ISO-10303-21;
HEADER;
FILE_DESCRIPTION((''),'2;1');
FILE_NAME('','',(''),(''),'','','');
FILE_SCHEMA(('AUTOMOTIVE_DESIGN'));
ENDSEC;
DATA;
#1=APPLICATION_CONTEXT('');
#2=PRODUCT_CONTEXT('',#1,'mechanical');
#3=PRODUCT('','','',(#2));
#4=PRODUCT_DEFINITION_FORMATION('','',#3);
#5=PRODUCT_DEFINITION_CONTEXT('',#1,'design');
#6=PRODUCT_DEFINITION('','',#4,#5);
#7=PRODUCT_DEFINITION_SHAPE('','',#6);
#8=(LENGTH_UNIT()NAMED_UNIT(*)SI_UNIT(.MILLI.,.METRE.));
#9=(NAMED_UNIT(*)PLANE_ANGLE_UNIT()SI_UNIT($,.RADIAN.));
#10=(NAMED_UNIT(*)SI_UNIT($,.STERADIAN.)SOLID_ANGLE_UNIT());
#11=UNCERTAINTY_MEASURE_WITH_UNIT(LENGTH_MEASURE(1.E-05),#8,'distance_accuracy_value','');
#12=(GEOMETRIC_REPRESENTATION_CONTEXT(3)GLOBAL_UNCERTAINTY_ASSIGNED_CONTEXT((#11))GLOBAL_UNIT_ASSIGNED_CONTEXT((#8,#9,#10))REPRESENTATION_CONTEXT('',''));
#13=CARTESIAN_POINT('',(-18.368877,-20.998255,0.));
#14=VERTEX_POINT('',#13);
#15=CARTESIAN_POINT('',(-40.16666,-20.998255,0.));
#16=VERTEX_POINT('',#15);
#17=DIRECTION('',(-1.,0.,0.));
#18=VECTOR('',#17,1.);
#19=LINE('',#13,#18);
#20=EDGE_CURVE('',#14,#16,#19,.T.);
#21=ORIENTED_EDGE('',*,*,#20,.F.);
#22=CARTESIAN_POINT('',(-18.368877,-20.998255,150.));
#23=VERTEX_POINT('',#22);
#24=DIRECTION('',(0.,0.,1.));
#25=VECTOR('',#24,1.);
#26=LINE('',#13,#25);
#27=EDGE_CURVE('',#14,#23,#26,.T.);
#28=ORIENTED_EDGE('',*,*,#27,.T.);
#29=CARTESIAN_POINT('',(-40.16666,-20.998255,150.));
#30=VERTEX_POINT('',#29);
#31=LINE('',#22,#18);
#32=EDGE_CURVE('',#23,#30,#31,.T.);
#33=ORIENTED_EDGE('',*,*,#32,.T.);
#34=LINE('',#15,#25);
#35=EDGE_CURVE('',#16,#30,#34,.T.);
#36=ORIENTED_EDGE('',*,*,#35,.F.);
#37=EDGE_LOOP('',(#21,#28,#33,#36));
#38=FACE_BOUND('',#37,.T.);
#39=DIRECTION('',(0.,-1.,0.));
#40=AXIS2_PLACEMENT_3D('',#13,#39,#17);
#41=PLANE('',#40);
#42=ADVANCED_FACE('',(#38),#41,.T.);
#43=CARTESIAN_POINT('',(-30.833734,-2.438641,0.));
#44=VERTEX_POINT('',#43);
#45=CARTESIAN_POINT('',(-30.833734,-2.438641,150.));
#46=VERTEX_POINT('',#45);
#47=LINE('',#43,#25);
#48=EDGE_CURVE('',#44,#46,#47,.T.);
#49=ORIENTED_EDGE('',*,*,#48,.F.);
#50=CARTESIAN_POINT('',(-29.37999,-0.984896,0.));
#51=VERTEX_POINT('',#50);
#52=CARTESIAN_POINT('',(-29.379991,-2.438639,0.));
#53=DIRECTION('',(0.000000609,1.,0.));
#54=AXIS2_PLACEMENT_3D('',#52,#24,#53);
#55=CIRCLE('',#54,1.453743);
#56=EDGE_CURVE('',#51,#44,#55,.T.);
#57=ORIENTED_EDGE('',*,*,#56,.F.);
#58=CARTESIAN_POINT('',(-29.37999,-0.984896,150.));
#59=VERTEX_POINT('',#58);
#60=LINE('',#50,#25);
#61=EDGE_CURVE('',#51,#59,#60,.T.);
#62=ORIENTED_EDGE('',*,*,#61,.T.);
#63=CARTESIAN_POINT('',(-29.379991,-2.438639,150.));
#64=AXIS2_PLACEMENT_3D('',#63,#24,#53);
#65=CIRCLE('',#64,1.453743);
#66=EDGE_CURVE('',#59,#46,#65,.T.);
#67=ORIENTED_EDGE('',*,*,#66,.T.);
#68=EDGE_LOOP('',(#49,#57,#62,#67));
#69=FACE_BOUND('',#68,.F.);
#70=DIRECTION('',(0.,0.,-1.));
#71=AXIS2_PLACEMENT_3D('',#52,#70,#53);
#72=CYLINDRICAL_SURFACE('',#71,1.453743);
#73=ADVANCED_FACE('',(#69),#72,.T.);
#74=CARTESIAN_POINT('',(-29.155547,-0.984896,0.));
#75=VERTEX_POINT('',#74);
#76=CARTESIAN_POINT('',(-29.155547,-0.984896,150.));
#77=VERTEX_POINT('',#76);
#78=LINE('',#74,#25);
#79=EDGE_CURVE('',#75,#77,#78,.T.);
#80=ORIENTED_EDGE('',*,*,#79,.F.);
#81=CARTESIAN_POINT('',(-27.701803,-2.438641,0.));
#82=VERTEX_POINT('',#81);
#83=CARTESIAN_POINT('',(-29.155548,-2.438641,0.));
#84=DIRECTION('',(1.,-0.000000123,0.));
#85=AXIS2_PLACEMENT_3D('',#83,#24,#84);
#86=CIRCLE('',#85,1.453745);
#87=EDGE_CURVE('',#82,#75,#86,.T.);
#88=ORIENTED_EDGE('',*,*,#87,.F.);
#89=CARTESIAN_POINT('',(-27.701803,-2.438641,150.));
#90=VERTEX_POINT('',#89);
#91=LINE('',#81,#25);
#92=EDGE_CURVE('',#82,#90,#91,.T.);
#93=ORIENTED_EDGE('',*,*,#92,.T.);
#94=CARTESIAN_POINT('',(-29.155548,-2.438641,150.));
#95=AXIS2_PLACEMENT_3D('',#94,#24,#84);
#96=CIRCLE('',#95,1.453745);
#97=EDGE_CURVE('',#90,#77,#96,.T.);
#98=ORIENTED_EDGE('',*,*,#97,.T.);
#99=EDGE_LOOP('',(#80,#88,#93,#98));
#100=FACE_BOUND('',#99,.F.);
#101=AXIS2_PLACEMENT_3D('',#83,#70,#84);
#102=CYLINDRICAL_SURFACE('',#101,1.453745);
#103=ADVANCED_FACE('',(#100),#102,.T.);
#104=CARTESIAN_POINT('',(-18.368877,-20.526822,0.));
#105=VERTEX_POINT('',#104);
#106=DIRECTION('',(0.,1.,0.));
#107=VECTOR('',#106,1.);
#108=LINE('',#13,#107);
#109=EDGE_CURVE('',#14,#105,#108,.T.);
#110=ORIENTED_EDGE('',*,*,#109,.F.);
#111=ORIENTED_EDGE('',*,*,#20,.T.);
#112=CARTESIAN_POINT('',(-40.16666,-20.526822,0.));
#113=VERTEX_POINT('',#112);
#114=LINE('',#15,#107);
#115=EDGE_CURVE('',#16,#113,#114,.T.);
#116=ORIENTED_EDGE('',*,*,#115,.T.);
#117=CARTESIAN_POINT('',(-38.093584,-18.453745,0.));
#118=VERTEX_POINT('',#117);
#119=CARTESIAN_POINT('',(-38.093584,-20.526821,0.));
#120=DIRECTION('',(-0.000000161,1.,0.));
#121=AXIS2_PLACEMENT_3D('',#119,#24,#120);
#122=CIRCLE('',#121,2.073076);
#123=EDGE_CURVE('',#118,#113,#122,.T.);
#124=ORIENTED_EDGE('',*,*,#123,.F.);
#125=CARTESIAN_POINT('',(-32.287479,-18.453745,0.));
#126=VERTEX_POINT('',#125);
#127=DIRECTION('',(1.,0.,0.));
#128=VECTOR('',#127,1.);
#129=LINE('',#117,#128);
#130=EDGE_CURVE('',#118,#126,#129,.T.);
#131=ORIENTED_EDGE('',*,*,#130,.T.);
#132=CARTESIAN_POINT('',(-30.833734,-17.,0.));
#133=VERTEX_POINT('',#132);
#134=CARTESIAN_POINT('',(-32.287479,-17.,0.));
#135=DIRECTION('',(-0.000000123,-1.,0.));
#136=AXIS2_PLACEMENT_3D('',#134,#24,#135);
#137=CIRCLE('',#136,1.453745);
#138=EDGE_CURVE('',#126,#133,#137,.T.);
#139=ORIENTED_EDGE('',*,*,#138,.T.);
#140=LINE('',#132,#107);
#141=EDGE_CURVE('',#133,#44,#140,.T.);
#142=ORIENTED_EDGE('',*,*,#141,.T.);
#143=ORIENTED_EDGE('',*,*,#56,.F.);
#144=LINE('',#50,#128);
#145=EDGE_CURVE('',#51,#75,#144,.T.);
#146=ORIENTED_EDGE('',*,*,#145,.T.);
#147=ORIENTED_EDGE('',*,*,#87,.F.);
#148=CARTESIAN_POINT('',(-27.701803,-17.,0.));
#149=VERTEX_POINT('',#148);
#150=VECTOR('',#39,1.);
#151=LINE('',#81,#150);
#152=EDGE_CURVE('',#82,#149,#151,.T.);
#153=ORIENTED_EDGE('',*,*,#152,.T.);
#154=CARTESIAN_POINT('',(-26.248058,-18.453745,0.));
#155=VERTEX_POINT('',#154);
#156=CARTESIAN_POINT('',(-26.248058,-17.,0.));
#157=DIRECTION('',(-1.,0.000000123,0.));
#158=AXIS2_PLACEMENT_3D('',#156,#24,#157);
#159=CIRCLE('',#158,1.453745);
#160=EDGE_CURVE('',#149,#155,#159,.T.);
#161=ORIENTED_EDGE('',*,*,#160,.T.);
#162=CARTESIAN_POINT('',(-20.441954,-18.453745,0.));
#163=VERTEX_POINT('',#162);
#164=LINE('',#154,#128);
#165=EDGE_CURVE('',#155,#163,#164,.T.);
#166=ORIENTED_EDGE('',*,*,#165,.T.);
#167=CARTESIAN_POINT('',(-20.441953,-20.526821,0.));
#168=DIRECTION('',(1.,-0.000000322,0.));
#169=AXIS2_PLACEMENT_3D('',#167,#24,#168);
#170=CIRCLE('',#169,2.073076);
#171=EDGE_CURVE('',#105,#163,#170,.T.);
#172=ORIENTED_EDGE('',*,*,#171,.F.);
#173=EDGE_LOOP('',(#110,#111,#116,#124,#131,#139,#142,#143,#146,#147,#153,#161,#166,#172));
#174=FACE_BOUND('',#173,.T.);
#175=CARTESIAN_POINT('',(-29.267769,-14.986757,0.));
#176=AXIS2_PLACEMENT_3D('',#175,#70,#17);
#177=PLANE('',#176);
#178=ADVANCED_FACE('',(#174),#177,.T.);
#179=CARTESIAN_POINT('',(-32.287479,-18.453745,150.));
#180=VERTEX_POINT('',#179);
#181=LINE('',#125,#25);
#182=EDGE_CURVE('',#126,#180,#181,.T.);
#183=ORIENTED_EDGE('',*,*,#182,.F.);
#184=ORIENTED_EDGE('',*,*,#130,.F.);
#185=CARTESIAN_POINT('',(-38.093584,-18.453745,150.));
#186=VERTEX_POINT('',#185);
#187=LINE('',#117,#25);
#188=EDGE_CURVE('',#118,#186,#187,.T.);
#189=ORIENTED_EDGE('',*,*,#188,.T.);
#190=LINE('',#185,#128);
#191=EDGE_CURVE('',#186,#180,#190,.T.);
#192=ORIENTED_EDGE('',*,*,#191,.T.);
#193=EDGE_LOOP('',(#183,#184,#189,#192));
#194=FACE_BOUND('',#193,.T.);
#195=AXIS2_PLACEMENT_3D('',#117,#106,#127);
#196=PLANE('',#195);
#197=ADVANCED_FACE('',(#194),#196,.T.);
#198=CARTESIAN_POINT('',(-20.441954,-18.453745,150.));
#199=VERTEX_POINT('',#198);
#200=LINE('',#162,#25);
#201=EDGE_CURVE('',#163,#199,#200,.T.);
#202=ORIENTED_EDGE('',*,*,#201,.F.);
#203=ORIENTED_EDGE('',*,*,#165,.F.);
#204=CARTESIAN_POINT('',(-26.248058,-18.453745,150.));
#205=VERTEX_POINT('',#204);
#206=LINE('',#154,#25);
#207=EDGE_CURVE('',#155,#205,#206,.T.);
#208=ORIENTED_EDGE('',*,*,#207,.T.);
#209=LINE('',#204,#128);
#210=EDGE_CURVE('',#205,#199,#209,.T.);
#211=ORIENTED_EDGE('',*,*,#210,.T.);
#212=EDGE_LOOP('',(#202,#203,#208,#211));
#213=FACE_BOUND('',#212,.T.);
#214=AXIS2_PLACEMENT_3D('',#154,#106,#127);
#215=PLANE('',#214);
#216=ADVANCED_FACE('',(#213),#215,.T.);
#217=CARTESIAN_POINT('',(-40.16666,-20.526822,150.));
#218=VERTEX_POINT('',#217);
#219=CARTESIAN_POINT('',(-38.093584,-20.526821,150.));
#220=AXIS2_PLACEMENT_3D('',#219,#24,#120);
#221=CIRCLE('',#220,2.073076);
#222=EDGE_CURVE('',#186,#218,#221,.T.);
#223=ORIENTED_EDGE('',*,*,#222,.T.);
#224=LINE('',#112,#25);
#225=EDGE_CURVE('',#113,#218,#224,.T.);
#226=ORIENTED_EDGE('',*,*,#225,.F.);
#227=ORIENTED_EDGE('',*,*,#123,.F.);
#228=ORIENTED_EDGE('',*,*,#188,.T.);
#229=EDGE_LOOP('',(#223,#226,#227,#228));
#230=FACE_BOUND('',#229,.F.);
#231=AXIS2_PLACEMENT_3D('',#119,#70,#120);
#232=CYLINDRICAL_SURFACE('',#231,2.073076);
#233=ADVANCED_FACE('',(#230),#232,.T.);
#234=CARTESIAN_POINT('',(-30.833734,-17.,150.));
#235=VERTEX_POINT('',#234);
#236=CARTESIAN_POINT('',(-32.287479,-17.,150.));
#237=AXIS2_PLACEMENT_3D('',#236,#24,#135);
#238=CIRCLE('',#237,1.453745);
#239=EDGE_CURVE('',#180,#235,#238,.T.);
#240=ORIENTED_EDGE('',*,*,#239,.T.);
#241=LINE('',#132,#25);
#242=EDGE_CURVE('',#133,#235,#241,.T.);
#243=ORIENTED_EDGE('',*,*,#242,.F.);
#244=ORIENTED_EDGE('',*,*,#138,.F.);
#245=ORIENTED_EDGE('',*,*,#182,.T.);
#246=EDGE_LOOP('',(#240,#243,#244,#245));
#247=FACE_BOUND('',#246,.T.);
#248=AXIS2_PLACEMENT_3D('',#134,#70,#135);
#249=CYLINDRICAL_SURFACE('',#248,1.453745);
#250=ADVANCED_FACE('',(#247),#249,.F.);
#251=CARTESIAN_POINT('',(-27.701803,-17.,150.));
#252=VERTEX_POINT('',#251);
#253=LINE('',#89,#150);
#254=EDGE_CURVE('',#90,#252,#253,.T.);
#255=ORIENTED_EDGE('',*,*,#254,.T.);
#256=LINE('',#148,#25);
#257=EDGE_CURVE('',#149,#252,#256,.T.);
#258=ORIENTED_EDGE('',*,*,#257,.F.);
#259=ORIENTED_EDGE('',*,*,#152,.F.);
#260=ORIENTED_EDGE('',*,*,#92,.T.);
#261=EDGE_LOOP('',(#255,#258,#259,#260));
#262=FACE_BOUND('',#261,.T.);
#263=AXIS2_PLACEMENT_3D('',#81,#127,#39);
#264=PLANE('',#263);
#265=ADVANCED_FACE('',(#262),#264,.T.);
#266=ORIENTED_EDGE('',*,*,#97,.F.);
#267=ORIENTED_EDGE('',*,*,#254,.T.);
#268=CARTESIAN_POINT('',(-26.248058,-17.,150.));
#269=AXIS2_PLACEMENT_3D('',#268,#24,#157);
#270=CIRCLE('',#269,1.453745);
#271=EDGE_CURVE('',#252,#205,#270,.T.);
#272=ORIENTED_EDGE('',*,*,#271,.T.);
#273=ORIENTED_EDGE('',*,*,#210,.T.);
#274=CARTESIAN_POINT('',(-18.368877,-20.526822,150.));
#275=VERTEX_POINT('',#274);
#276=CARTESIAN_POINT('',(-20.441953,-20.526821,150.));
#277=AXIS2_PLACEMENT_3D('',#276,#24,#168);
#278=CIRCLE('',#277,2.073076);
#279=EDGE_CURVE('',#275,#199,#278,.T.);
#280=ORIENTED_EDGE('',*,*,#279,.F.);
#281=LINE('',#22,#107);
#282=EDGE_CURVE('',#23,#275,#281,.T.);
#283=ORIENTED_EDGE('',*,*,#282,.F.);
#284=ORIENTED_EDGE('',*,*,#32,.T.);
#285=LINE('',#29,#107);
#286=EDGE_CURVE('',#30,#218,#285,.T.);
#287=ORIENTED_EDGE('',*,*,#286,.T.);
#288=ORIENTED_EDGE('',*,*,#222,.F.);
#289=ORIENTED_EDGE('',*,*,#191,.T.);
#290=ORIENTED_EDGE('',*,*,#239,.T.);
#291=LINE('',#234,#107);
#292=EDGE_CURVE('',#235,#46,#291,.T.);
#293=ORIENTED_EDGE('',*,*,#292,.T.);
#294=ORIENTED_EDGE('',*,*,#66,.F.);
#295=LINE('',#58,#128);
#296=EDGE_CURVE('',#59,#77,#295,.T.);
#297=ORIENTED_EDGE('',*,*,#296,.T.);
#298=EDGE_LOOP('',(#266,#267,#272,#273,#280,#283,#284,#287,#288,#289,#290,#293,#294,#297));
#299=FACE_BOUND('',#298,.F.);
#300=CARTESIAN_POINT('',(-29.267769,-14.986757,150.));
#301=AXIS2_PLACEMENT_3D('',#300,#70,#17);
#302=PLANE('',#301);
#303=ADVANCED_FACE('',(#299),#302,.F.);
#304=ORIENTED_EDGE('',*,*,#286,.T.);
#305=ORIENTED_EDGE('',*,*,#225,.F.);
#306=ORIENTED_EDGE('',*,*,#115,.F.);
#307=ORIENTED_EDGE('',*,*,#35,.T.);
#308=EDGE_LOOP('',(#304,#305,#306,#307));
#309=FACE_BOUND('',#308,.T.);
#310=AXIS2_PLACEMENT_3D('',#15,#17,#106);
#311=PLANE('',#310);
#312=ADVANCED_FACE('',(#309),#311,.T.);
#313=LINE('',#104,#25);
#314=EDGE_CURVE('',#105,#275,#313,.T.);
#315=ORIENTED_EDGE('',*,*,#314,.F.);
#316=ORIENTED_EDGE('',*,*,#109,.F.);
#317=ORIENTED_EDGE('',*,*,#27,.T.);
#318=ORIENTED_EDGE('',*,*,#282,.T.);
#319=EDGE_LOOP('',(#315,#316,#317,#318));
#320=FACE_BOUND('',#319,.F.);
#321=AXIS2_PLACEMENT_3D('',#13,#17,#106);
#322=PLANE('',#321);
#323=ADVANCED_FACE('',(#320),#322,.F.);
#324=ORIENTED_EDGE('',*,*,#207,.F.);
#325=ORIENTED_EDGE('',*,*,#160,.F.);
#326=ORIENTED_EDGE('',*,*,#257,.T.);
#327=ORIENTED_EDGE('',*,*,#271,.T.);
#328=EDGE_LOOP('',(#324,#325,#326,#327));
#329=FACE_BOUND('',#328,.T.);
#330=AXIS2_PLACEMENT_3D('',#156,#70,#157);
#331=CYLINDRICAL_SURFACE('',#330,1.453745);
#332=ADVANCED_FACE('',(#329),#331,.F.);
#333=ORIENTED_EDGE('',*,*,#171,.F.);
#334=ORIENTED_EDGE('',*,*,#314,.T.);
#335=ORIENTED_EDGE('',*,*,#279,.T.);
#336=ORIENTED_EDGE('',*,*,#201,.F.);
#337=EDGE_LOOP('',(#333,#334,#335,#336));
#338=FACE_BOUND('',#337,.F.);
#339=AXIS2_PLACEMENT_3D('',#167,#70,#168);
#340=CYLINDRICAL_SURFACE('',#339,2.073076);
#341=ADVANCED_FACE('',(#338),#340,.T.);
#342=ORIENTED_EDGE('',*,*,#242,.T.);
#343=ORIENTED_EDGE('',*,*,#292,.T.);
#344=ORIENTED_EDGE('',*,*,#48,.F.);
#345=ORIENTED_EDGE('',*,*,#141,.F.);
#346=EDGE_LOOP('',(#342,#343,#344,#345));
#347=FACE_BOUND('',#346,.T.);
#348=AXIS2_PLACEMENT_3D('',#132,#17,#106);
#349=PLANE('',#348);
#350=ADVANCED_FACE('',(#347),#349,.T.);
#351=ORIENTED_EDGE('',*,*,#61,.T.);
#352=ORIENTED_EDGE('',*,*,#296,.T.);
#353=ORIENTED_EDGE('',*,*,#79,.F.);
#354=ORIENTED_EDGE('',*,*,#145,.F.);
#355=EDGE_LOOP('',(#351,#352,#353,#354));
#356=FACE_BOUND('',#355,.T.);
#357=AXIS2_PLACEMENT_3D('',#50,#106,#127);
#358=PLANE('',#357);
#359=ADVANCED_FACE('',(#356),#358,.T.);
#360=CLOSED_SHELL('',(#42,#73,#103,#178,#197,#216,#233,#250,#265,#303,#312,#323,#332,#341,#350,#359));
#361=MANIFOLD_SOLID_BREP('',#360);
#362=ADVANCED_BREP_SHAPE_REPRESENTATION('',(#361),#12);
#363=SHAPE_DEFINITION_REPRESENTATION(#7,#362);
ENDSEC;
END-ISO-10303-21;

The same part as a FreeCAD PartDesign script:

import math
import FreeCAD as App
import Part
import Sketcher

doc = App.newDocument("Part")
params = doc.addObject("Spreadsheet::Sheet", "Params")
for row, (alias, value) in enumerate([
    ("pad1_length", "150 mm"),
], start=1):
    params.set(f"A{row}", alias)
    params.set(f"B{row}", "=" + value)
    params.setAlias(f"B{row}", alias)

body = doc.addObject("PartDesign::Body", "Body")

# Sketch on XY plane
sketch1 = body.newObject("Sketcher::SketchObject", "Sketch")
sketch1.AttachmentSupport = (doc.getObject("XY_Plane"), [""])
sketch1.MapMode = "FlatFace"
sketch1.addGeometry([
    Part.LineSegment(App.Vector(-32.29, -18.45, 0), App.Vector(-38.09, -18.45, 0)),  # 0
    Part.ArcOfCircle(Part.Circle(App.Vector(-38.09, -20.53, 0), App.Vector(0, 0, 1), 2.07), math.radians(90), math.radians(180)),  # 1
    Part.LineSegment(App.Vector(-40.17, -20.53, 0), App.Vector(-40.17, -21, 0)),  # 2
    Part.LineSegment(App.Vector(-40.17, -21, 0), App.Vector(-18.37, -21, 0)),  # 3
    Part.LineSegment(App.Vector(-18.37, -21, 0), App.Vector(-18.37, -20.53, 0)),  # 4
    Part.ArcOfCircle(Part.Circle(App.Vector(-20.44, -20.53, 0), App.Vector(0, 0, 1), 2.07), math.radians(0), math.radians(90)),  # 5
    Part.LineSegment(App.Vector(-20.44, -18.45, 0), App.Vector(-26.25, -18.45, 0)),  # 6
    Part.ArcOfCircle(Part.Circle(App.Vector(-26.25, -17, 0), App.Vector(0, 0, 1), 1.45), math.radians(180), math.radians(270)),  # 7
    Part.LineSegment(App.Vector(-27.7, -17, 0), App.Vector(-27.7, -2.44, 0)),  # 8
    Part.ArcOfCircle(Part.Circle(App.Vector(-29.16, -2.44, 0), App.Vector(0, 0, 1), 1.45), math.radians(0), math.radians(90)),  # 9
    Part.LineSegment(App.Vector(-29.16, -0.98, 0), App.Vector(-29.38, -0.98, 0)),  # 10
    Part.ArcOfCircle(Part.Circle(App.Vector(-29.38, -2.44, 0), App.Vector(0, 0, 1), 1.45), math.radians(90), math.radians(180)),  # 11
    Part.LineSegment(App.Vector(-30.83, -2.44, 0), App.Vector(-30.83, -17, 0)),  # 12
    Part.ArcOfCircle(Part.Circle(App.Vector(-32.29, -17, 0), App.Vector(0, 0, 1), 1.45), math.radians(-90), math.radians(0)),  # 13
], False)
sketch1.addConstraint([
    Sketcher.Constraint("Tangent", 0, 2, 1, 1),
    Sketcher.Constraint("Tangent", 1, 2, 2, 1),
    Sketcher.Constraint("Coincident", 2, 2, 3, 1),
    Sketcher.Constraint("Coincident", 3, 2, 4, 1),
    Sketcher.Constraint("Tangent", 4, 2, 5, 1),
    Sketcher.Constraint("Tangent", 5, 2, 6, 1),
    Sketcher.Constraint("Tangent", 6, 2, 7, 2),
    Sketcher.Constraint("Tangent", 7, 1, 8, 1),
    Sketcher.Constraint("Tangent", 8, 2, 9, 1),
    Sketcher.Constraint("Tangent", 9, 2, 10, 1),
    Sketcher.Constraint("Tangent", 10, 2, 11, 1),
    Sketcher.Constraint("Tangent", 11, 2, 12, 1),
    Sketcher.Constraint("Tangent", 12, 2, 13, 2),
    Sketcher.Constraint("Tangent", 13, 1, 0, 1),
    Sketcher.Constraint("Horizontal", 0),
    Sketcher.Constraint("Vertical", 2),
    Sketcher.Constraint("Horizontal", 3),
    Sketcher.Constraint("Vertical", 4),
    Sketcher.Constraint("Horizontal", 6),
    Sketcher.Constraint("Vertical", 8),
    Sketcher.Constraint("Horizontal", 10),
    Sketcher.Constraint("Vertical", 12),
    Sketcher.Constraint("Equal", 1, 5),
    Sketcher.Constraint("Equal", 7, 9),
    Sketcher.Constraint("Equal", 9, 11),
    Sketcher.Constraint("Equal", 11, 13),
    Sketcher.Constraint("Horizontal", 1, 3, 5, 3),
    Sketcher.Constraint("Equal", 0, 6),
    Sketcher.Constraint("DistanceY", 7, 3, -1, 1, 17.0),
    Sketcher.Constraint("Radius", 1, 2.073076),
    Sketcher.Constraint("Radius", 7, 1.453745),
    Sketcher.Constraint("DistanceY", 8, 1, 8, 2, 14.561359),
    Sketcher.Constraint("DistanceX", 1, 2, 7, 3, 13.918602),
    Sketcher.Constraint("DistanceX", 0, 2, 0, 1, 5.806105),
    Sketcher.Constraint("DistanceY", 2, 2, 2, 1, 0.471433),
    Sketcher.Constraint("DistanceX", 7, 3, -1, 1, 26.248058),
])
pad1 = body.newObject("PartDesign::Pad", "Pad")
pad1.Profile = sketch1
pad1.setExpression("Length", "Params.pad1_length")

doc.recompute()
